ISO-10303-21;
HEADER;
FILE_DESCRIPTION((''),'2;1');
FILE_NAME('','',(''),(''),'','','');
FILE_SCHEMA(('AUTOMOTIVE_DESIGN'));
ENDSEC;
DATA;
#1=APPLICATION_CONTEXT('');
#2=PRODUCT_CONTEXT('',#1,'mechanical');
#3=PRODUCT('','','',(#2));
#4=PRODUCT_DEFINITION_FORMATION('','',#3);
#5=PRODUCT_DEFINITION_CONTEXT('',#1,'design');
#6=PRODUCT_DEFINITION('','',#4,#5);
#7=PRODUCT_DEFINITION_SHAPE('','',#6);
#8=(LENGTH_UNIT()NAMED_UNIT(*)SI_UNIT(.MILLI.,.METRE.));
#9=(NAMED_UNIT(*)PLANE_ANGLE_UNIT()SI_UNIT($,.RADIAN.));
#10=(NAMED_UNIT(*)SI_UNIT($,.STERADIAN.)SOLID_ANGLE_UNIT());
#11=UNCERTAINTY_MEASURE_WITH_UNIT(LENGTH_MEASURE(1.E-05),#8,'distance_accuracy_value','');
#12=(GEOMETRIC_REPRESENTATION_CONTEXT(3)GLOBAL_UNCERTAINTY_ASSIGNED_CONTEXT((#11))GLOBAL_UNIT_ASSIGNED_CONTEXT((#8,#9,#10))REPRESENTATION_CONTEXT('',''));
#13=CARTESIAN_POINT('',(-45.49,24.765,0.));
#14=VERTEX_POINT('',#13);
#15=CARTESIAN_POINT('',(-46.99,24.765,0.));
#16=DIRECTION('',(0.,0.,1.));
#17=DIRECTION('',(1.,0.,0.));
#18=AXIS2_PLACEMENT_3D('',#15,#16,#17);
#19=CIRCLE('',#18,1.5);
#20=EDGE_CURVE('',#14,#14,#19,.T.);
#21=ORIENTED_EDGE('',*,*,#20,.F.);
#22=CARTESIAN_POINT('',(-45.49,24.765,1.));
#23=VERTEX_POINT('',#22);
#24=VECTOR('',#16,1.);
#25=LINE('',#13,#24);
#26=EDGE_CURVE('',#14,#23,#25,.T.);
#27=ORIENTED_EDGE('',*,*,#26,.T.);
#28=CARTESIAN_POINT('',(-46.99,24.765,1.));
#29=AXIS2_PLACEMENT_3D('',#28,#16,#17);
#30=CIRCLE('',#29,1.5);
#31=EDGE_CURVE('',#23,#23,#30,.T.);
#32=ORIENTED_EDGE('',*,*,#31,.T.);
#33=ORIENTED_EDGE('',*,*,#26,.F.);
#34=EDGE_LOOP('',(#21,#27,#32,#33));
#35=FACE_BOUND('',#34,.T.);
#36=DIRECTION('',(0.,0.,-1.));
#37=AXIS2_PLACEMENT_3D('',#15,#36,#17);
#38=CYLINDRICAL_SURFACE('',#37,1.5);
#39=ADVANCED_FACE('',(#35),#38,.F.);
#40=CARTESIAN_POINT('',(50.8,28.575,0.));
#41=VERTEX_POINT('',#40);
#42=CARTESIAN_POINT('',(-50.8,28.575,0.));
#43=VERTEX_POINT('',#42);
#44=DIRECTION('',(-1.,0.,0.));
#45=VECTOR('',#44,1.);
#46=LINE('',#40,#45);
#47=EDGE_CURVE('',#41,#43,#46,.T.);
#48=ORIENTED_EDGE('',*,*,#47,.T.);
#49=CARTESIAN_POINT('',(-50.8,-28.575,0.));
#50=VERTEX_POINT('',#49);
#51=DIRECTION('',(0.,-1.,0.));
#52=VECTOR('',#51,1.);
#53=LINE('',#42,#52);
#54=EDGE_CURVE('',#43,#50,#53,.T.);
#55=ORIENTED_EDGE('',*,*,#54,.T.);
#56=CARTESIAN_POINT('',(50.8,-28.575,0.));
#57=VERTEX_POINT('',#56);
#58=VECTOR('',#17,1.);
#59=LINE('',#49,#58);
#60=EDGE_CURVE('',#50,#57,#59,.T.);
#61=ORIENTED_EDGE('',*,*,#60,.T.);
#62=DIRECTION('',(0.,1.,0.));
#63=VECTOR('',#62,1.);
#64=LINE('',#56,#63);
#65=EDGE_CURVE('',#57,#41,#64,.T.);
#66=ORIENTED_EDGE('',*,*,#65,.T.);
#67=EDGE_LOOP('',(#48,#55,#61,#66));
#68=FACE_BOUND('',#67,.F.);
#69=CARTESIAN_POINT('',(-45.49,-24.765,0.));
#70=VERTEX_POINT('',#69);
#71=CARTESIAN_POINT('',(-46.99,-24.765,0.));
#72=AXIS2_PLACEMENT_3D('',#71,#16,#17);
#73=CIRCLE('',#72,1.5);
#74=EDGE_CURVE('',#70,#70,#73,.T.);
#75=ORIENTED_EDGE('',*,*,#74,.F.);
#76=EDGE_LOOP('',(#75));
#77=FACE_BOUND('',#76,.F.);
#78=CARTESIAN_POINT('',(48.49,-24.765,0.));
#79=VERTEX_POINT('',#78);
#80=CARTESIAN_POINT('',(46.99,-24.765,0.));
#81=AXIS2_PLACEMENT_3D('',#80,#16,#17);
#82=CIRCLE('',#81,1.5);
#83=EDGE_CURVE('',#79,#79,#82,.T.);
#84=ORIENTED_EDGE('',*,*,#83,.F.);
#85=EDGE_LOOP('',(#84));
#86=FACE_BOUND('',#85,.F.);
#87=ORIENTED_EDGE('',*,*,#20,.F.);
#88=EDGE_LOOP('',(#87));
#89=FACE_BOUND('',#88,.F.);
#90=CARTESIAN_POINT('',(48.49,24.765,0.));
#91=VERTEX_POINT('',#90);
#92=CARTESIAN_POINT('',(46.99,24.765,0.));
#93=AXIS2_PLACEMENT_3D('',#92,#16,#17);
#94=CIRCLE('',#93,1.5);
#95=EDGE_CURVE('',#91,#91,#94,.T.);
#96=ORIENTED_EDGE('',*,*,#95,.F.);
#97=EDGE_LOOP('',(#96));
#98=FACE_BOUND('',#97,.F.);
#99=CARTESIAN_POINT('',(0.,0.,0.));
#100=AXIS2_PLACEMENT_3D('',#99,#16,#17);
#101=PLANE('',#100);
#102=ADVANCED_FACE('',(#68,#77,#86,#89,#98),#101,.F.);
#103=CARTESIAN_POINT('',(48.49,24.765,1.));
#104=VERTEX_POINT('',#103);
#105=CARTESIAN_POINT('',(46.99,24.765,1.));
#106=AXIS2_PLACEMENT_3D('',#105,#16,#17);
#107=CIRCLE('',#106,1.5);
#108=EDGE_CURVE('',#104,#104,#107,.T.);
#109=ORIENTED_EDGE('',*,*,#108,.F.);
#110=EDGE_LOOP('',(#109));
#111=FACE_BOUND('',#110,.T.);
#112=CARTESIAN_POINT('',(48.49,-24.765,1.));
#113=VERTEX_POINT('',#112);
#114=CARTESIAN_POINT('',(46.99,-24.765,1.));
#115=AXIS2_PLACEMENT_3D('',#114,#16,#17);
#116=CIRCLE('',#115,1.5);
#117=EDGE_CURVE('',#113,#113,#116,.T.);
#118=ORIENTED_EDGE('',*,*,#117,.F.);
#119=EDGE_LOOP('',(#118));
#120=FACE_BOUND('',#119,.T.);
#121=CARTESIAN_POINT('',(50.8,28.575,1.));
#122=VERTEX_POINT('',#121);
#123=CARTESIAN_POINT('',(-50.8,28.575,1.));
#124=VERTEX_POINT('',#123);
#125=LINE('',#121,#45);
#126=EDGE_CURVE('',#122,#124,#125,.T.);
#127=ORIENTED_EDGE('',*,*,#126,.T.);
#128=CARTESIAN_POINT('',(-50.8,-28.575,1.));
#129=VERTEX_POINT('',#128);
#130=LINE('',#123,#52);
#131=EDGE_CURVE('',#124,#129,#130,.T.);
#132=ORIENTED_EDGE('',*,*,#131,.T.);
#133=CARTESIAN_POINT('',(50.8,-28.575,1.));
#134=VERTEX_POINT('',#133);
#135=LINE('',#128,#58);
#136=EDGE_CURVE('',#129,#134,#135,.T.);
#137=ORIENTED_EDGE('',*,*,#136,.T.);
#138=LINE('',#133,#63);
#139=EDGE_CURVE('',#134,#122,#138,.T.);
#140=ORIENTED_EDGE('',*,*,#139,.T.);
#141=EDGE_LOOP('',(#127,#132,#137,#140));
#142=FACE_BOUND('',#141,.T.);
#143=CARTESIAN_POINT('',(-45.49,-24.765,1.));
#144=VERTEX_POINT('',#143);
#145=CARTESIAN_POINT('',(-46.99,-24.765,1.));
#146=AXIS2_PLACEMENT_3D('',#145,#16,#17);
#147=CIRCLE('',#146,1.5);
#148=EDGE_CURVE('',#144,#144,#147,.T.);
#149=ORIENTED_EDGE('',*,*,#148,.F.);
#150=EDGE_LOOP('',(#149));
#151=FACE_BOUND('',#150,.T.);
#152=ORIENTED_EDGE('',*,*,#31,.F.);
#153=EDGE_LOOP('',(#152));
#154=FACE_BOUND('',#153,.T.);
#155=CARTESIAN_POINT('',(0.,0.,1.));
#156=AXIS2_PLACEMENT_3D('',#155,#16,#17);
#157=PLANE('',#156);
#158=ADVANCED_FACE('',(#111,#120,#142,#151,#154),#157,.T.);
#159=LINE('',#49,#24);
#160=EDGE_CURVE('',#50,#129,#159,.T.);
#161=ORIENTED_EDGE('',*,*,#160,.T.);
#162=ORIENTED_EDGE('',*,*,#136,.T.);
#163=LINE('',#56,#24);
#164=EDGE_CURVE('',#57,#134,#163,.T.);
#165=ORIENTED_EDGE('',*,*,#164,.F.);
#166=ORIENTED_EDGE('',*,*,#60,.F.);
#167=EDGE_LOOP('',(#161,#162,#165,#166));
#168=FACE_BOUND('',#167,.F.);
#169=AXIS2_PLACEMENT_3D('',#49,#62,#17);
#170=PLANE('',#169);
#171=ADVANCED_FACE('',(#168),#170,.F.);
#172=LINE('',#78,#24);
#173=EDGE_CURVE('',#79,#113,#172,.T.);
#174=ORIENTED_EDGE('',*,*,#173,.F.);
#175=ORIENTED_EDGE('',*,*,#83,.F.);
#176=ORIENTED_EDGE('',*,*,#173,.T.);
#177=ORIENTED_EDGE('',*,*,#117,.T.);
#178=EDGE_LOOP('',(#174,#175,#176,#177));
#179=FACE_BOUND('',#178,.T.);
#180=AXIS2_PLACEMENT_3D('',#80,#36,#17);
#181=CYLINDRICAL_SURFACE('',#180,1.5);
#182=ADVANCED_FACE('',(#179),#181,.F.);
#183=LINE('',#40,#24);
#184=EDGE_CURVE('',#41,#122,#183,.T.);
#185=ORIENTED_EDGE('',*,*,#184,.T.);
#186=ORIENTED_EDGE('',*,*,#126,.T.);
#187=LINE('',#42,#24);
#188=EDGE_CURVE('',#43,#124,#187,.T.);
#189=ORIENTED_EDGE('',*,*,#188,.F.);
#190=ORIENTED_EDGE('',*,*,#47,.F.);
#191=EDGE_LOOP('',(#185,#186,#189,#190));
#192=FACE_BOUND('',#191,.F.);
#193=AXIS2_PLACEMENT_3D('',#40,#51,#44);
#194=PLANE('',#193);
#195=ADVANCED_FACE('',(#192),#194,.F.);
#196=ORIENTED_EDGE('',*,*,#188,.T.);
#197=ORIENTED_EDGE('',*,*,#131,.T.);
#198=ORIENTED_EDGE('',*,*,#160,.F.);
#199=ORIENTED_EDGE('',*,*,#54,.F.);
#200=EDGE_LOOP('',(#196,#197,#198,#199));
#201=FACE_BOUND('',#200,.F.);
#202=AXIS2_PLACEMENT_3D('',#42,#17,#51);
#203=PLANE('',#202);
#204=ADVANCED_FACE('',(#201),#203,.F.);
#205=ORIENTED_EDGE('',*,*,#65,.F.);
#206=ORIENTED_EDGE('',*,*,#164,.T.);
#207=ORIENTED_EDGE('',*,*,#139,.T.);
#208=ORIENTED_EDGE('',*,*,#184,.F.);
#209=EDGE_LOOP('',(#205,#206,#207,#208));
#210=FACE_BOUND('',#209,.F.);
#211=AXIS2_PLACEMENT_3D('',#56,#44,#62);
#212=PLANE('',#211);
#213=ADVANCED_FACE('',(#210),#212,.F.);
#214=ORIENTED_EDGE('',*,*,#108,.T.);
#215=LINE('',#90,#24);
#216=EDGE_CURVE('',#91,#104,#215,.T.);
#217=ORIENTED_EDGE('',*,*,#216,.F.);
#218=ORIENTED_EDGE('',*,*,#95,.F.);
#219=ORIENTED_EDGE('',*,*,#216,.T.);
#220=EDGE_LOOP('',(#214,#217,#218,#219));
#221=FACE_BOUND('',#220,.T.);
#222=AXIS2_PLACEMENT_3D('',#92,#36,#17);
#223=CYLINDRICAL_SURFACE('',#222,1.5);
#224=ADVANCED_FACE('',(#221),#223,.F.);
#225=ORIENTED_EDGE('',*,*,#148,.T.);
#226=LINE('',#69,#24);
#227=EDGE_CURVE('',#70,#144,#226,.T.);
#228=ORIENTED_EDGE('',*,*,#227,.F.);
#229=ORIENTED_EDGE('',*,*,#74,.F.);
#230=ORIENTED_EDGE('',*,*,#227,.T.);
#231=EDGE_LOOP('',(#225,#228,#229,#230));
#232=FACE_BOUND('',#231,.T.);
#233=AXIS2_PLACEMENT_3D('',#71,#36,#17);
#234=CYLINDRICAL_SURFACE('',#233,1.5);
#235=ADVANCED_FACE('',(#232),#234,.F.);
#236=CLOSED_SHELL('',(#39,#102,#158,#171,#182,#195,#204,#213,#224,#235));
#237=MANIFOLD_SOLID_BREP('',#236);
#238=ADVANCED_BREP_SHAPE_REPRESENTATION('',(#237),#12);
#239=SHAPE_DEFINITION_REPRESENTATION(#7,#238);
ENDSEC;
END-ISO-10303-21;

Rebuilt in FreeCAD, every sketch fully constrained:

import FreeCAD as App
import Part
import Sketcher
from FreeCAD import Vector
Q = App.Units.Quantity


def add_polygon(sketch, points):
    """Adds a closed chain of lines whose ends are joined by coincident constraints."""
    first, n = sketch.GeometryCount, len(points)
    for a, b in zip(points, points[1:] + points[:1]):
        sketch.addGeometry(Part.LineSegment(App.Vector(*a, 0), App.Vector(*b, 0)), False)
    for i in range(n):
        sketch.addConstraint(Sketcher.Constraint("Coincident", first + i, 2, first + (i + 1) % n, 1))

doc = App.newDocument("Part")
params = doc.addObject("Spreadsheet::Sheet", "Params")
for row, (alias, value) in enumerate([
    ("sketch1_width", "4 in"),
    ("sketch1_height", "2.25 in"),
    ("pad1_length", "1 mm"),
], start=1):
    params.set(f"A{row}", alias)
    params.set(f"B{row}", "=" + value)
    params.setAlias(f"B{row}", alias)

body = doc.addObject("PartDesign::Body", "Body")

# Sketch on XY plane
sketch1 = doc.addObject("Sketcher::SketchObject", "Sketch")
body.addObject(sketch1)
sketch1.AttachmentSupport = (doc.XY_Plane, [""])
sketch1.MapMode = "FlatFace"
add_polygon(sketch1, [(-50.8, 28.6), (-50.8, -28.6), (50.8, -28.6), (50.8, 28.6)])  # lines 0-3
sketch1.addGeometry(Part.Circle(Vector(-47, -24.8, 0), Vector(0, 0, 1), 1.5), False)  # 4
sketch1.addGeometry(Part.Circle(Vector(47, -24.8, 0), Vector(0, 0, 1), 1.5), False)  # 5
sketch1.addGeometry(Part.Circle(Vector(-47, 24.8, 0), Vector(0, 0, 1), 1.5), False)  # 6
sketch1.addGeometry(Part.Circle(Vector(47, 24.8, 0), Vector(0, 0, 1), 1.5), False)  # 7
sketch1.addConstraint([
    Sketcher.Constraint("Vertical", 0),
    Sketcher.Constraint("Horizontal", 1),
    Sketcher.Constraint("Vertical", 2),
    Sketcher.Constraint("Horizontal", 3),
    Sketcher.Constraint("Equal", 4, 5),
    Sketcher.Constraint("Equal", 5, 6),
    Sketcher.Constraint("Equal", 6, 7),
    Sketcher.Constraint("Symmetric", 5, 3, 6, 3, -1, 1),
    Sketcher.Constraint("Symmetric", 4, 3, 7, 3, -1, 1),
    Sketcher.Constraint("Symmetric", 0, 2, 2, 2, -1, 1),
    Sketcher.Constraint("Symmetric", 4, 3, 5, 3, -2),
    Sketcher.Constraint("DistanceX", 1, 1, 1, 2, Q("4 in")),
    Sketcher.Constraint("Diameter", 4, Q("0.1181 in")),
    Sketcher.Constraint("DistanceY", 0, 2, 0, 1, Q("2.25 in")),
    Sketcher.Constraint("DistanceX", 4, 3, 5, 3, Q("3.7 in")),
    Sketcher.Constraint("DistanceY", 4, 3, 6, 3, Q("1.95 in")),
])
sketch1.setExpression("Constraints[15]", "Params.sketch1_width")
sketch1.setExpression("Constraints[17]", "Params.sketch1_height")
pad1 = doc.addObject("PartDesign::Pad", "Pad")
body.addObject(pad1)
pad1.Profile = sketch1
pad1.setExpression("Length", "Params.pad1_length")

doc.recompute()
